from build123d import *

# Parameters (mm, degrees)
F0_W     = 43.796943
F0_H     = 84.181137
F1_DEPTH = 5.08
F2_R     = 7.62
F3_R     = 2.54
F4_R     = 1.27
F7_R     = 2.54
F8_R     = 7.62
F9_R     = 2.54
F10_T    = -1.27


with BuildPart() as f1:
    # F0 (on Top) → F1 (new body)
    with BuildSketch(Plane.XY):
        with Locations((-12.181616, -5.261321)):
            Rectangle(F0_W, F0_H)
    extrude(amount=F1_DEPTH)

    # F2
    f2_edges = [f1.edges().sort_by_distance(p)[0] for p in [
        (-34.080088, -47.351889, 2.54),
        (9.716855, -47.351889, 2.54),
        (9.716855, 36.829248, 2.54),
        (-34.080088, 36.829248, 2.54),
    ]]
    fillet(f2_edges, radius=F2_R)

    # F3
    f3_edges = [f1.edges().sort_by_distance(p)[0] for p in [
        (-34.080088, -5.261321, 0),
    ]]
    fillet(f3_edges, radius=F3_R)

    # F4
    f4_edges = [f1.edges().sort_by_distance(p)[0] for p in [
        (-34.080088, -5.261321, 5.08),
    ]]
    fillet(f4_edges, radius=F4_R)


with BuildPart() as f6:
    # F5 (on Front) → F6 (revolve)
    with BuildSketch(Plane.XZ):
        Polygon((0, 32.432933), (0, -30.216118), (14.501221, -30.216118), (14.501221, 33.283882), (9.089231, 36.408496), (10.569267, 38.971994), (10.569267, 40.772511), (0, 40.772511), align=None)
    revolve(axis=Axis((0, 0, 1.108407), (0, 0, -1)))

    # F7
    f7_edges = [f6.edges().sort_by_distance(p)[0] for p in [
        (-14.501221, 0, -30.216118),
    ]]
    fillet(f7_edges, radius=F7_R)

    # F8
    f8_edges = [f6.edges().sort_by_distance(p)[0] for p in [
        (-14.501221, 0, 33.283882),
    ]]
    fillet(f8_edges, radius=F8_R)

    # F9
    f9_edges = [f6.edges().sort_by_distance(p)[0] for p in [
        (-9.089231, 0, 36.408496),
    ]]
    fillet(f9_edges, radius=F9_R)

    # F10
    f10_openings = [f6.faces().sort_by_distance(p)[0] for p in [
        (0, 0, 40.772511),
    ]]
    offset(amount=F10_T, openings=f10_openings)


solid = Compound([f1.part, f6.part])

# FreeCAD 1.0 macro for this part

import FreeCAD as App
import Part
import Sketcher
from FreeCAD import Vector
Q = App.Units.Quantity


def edges_at(feature, points):
    """Names of the edges that pass closest to the given points."""
    edges = feature.Shape.Edges
    near = lambda p: min(range(len(edges)), key=lambda i: edges[i].distToShape(Part.Vertex(*p))[0])
    return sorted({f"Edge{near(p) + 1}" for p in points})


def faces_at(feature, points):
    """Names of the faces that lie closest to the given points."""
    faces = feature.Shape.Faces
    near = lambda p: min(range(len(faces)), key=lambda i: faces[i].distToShape(Part.Vertex(*p))[0])
    return sorted({f"Face{near(p) + 1}" for p in points})

doc = App.newDocument("Part")
body = doc.addObject("PartDesign::Body", "Body")

sketch1 = doc.addObject("Sketcher::SketchObject", "Sketch")
body.addObject(sketch1)
sketch1.AttachmentSupport = (doc.XY_Plane, [""])
sketch1.MapMode = "FlatFace"
sketch1.addGeometry(Part.LineSegment(Vector(-34.080087, 36.829248, 0), Vector(-34.080087, -47.351889, 0)), False)
sketch1.addGeometry(Part.LineSegment(Vector(-34.080087, -47.351889, 0), Vector(9.716855, -47.351889, 0)), False)
sketch1.addGeometry(Part.LineSegment(Vector(9.716855, -47.351889, 0), Vector(9.716855, 36.829248, 0)), False)
sketch1.addGeometry(Part.LineSegment(Vector(9.716855, 36.829248, 0), Vector(-34.080087, 36.829248, 0)), False)
sketch1.addConstraint(Sketcher.Constraint("Coincident", 0, 2, 1, 1))
sketch1.addConstraint(Sketcher.Constraint("Coincident", 1, 2, 2, 1))
sketch1.addConstraint(Sketcher.Constraint("Coincident", 2, 2, 3, 1))
sketch1.addConstraint(Sketcher.Constraint("Coincident", 3, 2, 0, 1))
sketch1.addConstraint(Sketcher.Constraint("Vertical", 0))
sketch1.addConstraint(Sketcher.Constraint("Horizontal", 1))
sketch1.addConstraint(Sketcher.Constraint("Vertical", 2))
sketch1.addConstraint(Sketcher.Constraint("Horizontal", 3))
sketch1.addConstraint(Sketcher.Constraint("DistanceX", 1, 1, 1, 2, Q("43.796943 mm")))
sketch1.addConstraint(Sketcher.Constraint("DistanceY", 0, 2, 0, 1, Q("84.181137 mm")))
sketch1.addConstraint(Sketcher.Constraint("DistanceY", 0, 2, -1, 1, Q("47.351889 mm")))
sketch1.addConstraint(Sketcher.Constraint("DistanceX", 0, 2, -1, 1, Q("34.080087 mm")))
pad1 = doc.addObject("PartDesign::Pad", "Pad")
body.addObject(pad1)
pad1.Profile = sketch1
pad1.Length = Q("0.2 in")
doc.recompute()

fillet = doc.addObject("PartDesign::Fillet", "Fillet")
body.addObject(fillet)
fillet.Base = (pad1, edges_at(pad1, [
    (-34.08, -47.352, 2.54),
    (9.717, -47.352, 2.54),
    (9.717, 36.829, 2.54),
    (-34.08, 36.829, 2.54),
]))
fillet.Radius = Q("0.3 in")
doc.recompute()

fillet2 = doc.addObject("PartDesign::Fillet", "Fillet001")
body.addObject(fillet2)
fillet2.Base = (fillet, edges_at(fillet, [(-34.08, -5.261, 0)]))
fillet2.Radius = Q("0.1 in")
doc.recompute()

fillet3 = doc.addObject("PartDesign::Fillet", "Fillet002")
body.addObject(fillet3)
fillet3.Base = (fillet2, edges_at(fillet2, [(-34.08, -5.261, 5.08)]))
fillet3.Radius = Q("0.05 in")
body2 = doc.addObject("PartDesign::Body", "Body001")

sketch2 = doc.addObject("Sketcher::SketchObject", "Sketch001")
body2.addObject(sketch2)
sketch2.AttachmentSupport = (doc.getObject("XZ_Plane001"), [""])
sketch2.MapMode = "FlatFace"
sketch2.addGeometry(Part.LineSegment(Vector(0, -30.216118, 0), Vector(14.501221, -30.216118, 0)), False)
sketch2.addGeometry(Part.LineSegment(Vector(14.501221, -30.216118, 0), Vector(14.501221, 33.283882, 0)), False)
sketch2.addGeometry(Part.LineSegment(Vector(14.501221, 33.283882, 0), Vector(9.089231, 36.408496, 0)), False)
sketch2.addGeometry(Part.LineSegment(Vector(9.089231, 36.408496, 0), Vector(10.569267, 38.971994, 0)), False)
sketch2.addGeometry(Part.LineSegment(Vector(10.569267, 38.971994, 0), Vector(10.569267, 40.772511, 0)), False)
sketch2.addGeometry(Part.LineSegment(Vector(10.569267, 40.772511, 0), Vector(0, 40.772511, 0)), False)
sketch2.addGeometry(Part.LineSegment(Vector(0, 40.772511, 0), Vector(0, -30.216118, 0)), False)
sketch2.addConstraint(Sketcher.Constraint("Coincident", 0, 2, 1, 1))
sketch2.addConstraint(Sketcher.Constraint("Coincident", 1, 2, 2, 1))
sketch2.addConstraint(Sketcher.Constraint("Coincident", 2, 2, 3, 1))
sketch2.addConstraint(Sketcher.Constraint("Coincident", 3, 2, 4, 1))
sketch2.addConstraint(Sketcher.Constraint("Coincident", 4, 2, 5, 1))
sketch2.addConstraint(Sketcher.Constraint("Coincident", 5, 2, 6, 1))
sketch2.addConstraint(Sketcher.Constraint("Coincident", 6, 2, 0, 1))
sketch2.addConstraint(Sketcher.Constraint("Horizontal", 0))
sketch2.addConstraint(Sketcher.Constraint("Vertical", 1))
sketch2.addConstraint(Sketcher.Constraint("Vertical", 4))
sketch2.addConstraint(Sketcher.Constraint("Horizontal", 5))
sketch2.addConstraint(Sketcher.Constraint("Vertical", 6))
sketch2.addConstraint(Sketcher.Constraint("PointOnObject", 5, 2, -2))
sketch2.addConstraint(Sketcher.Constraint("Perpendicular", 2, 3))
sketch2.addConstraint(Sketcher.Constraint("DistanceY", 1, 1, 1, 2, Q("2.5 in")))
sketch2.addConstraint(Sketcher.Constraint("Angle", 2, Q("149.999999 deg")))
sketch2.addConstraint(Sketcher.Constraint("DistanceX", 0, 1, 0, 2, Q("14.501221 mm")))
sketch2.addConstraint(Sketcher.Constraint("DistanceY", 6, 2, 6, 1, Q("70.988629 mm")))
sketch2.addConstraint(Sketcher.Constraint("DistanceY", 2, 2, 3, 2, Q("2.563498 mm")))
sketch2.addConstraint(Sketcher.Constraint("DistanceX", 5, 2, 5, 1, Q("10.569267 mm")))
sketch2.addConstraint(Sketcher.Constraint("DistanceY", 0, 2, -1, 1, Q("30.216118 mm")))
revolution = doc.addObject("PartDesign::Revolution", "Revolution")
body2.addObject(revolution)
revolution.Profile = sketch2
revolution.ReferenceAxis = (sketch2, ["V_Axis"])
revolution.Angle = 360
doc.recompute()

fillet4 = doc.addObject("PartDesign::Fillet", "Fillet003")
body2.addObject(fillet4)
fillet4.Base = (revolution, edges_at(revolution, [(-14.501, 0, -30.216)]))
fillet4.Radius = Q("0.1 in")
doc.recompute()

fillet5 = doc.addObject("PartDesign::Fillet", "Fillet004")
body2.addObject(fillet5)
fillet5.Base = (fillet4, edges_at(fillet4, [(-14.501, 0, 33.284)]))
fillet5.Radius = Q("0.3 in")
doc.recompute()

fillet6 = doc.addObject("PartDesign::Fillet", "Fillet005")
body2.addObject(fillet6)
fillet6.Base = (fillet5, edges_at(fillet5, [(-9.089, 0, 36.408)]))
fillet6.Radius = Q("0.1 in")
doc.recompute()

thickness = doc.addObject("PartDesign::Thickness", "Thickness")
body2.addObject(thickness)
thickness.Base = (fillet6, faces_at(fillet6, [(0, 0, 40.773)]))
thickness.Value = Q("0.05 in")
thickness.Reversed = True
thickness.Join = "Arc"

doc.recompute()
